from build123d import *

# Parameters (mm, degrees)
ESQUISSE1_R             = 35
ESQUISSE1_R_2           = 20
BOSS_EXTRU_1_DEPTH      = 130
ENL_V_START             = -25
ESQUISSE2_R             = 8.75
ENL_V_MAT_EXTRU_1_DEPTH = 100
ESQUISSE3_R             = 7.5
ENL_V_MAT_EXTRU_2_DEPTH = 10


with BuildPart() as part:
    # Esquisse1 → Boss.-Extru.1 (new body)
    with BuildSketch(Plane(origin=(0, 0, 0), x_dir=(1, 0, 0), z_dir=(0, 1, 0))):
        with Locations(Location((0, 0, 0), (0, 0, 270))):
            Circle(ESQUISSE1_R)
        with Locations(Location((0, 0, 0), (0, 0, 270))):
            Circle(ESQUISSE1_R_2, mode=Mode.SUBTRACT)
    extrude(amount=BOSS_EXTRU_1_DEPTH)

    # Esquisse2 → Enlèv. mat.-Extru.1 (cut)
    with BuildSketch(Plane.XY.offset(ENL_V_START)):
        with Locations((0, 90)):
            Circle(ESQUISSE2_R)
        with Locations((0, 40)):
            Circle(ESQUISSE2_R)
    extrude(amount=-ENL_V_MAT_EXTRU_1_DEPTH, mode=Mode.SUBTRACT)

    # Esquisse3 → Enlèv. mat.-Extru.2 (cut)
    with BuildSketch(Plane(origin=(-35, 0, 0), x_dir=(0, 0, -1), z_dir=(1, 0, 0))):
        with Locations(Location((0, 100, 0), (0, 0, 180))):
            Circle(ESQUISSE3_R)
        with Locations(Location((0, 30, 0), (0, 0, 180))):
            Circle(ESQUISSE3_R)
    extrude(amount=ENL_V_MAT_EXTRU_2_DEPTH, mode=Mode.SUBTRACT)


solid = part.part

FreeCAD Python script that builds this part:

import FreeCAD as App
import Part
import Sketcher
from FreeCAD import Vector

doc = App.newDocument("Part")
body = doc.addObject("PartDesign::Body", "Body")

# Sketch on XZ plane
sketch1 = body.newObject("Sketcher::SketchObject", "Sketch")
sketch1.AttachmentSupport = (doc.getObject("XZ_Plane"), [""])
sketch1.MapMode = "FlatFace"
sketch1.addGeometry(Part.Circle(Vector(0, 0, 0), Vector(0, 0, 1), 35), False)
sketch1.addGeometry(Part.Circle(Vector(0, 0, 0), Vector(0, 0, 1), 20), False)
sketch1.addConstraint(Sketcher.Constraint("Coincident", 0, 3, -1, 1))
sketch1.addConstraint(Sketcher.Constraint("Coincident", 1, 3, -1, 1))
sketch1.addConstraint(Sketcher.Constraint("Diameter", 0, 70.0))
sketch1.addConstraint(Sketcher.Constraint("Diameter", 1, 40.0))
pad1 = body.newObject("PartDesign::Pad", "Pad")
pad1.Profile = sketch1
pad1.Length = 130
pad1.Reversed = True

# Sketch on XY plane
sketch2 = body.newObject("Sketcher::SketchObject", "Sketch001")
sketch2.AttachmentSupport = (doc.getObject("XY_Plane"), [""])
sketch2.MapMode = "FlatFace"
sketch2.AttachmentOffset = App.Placement(Vector(0, 0, -25), App.Rotation())
sketch2.addGeometry(Part.Circle(Vector(0, 90, 0), Vector(0, 0, 1), 8.75), False)
sketch2.addGeometry(Part.Circle(Vector(0, 40, 0), Vector(0, 0, 1), 8.75), False)
sketch2.addConstraint(Sketcher.Constraint("Equal", 0, 1))
sketch2.addConstraint(Sketcher.Constraint("PointOnObject", 0, 3, -2))
sketch2.addConstraint(Sketcher.Constraint("PointOnObject", 1, 3, -2))
sketch2.addConstraint(Sketcher.Constraint("Diameter", 0, 17.5))
sketch2.addConstraint(Sketcher.Constraint("DistanceY", -1, 1, 0, 3, 90.0))
sketch2.addConstraint(Sketcher.Constraint("DistanceY", -1, 1, 1, 3, 40.0))
pocket1 = body.newObject("PartDesign::Pocket", "Pocket")
pocket1.Profile = sketch2
pocket1.Length = 100

# Sketch on YZ plane
sketch3 = body.newObject("Sketcher::SketchObject", "Sketch002")
sketch3.AttachmentSupport = (doc.getObject("YZ_Plane"), [""])
sketch3.MapMode = "FlatFace"
sketch3.AttachmentOffset = App.Placement(Vector(0, 0, -35), App.Rotation())
sketch3.addGeometry(Part.Circle(Vector(100, 0, 0), Vector(0, 0, 1), 7.5), False)
sketch3.addGeometry(Part.Circle(Vector(30, 0, 0), Vector(0, 0, 1), 7.5), False)
sketch3.addConstraint(Sketcher.Constraint("Equal", 0, 1))
sketch3.addConstraint(Sketcher.Constraint("PointOnObject", 0, 3, -1))
sketch3.addConstraint(Sketcher.Constraint("PointOnObject", 1, 3, -1))
sketch3.addConstraint(Sketcher.Constraint("Diameter", 0, 15.0))
sketch3.addConstraint(Sketcher.Constraint("DistanceX", -1, 1, 0, 3, 100.0))
sketch3.addConstraint(Sketcher.Constraint("DistanceX", -1, 1, 1, 3, 30.0))
pocket2 = body.newObject("PartDesign::Pocket", "Pocket001")
pocket2.Profile = sketch3
pocket2.Length = 10
pocket2.Reversed = True

doc.recompute()
